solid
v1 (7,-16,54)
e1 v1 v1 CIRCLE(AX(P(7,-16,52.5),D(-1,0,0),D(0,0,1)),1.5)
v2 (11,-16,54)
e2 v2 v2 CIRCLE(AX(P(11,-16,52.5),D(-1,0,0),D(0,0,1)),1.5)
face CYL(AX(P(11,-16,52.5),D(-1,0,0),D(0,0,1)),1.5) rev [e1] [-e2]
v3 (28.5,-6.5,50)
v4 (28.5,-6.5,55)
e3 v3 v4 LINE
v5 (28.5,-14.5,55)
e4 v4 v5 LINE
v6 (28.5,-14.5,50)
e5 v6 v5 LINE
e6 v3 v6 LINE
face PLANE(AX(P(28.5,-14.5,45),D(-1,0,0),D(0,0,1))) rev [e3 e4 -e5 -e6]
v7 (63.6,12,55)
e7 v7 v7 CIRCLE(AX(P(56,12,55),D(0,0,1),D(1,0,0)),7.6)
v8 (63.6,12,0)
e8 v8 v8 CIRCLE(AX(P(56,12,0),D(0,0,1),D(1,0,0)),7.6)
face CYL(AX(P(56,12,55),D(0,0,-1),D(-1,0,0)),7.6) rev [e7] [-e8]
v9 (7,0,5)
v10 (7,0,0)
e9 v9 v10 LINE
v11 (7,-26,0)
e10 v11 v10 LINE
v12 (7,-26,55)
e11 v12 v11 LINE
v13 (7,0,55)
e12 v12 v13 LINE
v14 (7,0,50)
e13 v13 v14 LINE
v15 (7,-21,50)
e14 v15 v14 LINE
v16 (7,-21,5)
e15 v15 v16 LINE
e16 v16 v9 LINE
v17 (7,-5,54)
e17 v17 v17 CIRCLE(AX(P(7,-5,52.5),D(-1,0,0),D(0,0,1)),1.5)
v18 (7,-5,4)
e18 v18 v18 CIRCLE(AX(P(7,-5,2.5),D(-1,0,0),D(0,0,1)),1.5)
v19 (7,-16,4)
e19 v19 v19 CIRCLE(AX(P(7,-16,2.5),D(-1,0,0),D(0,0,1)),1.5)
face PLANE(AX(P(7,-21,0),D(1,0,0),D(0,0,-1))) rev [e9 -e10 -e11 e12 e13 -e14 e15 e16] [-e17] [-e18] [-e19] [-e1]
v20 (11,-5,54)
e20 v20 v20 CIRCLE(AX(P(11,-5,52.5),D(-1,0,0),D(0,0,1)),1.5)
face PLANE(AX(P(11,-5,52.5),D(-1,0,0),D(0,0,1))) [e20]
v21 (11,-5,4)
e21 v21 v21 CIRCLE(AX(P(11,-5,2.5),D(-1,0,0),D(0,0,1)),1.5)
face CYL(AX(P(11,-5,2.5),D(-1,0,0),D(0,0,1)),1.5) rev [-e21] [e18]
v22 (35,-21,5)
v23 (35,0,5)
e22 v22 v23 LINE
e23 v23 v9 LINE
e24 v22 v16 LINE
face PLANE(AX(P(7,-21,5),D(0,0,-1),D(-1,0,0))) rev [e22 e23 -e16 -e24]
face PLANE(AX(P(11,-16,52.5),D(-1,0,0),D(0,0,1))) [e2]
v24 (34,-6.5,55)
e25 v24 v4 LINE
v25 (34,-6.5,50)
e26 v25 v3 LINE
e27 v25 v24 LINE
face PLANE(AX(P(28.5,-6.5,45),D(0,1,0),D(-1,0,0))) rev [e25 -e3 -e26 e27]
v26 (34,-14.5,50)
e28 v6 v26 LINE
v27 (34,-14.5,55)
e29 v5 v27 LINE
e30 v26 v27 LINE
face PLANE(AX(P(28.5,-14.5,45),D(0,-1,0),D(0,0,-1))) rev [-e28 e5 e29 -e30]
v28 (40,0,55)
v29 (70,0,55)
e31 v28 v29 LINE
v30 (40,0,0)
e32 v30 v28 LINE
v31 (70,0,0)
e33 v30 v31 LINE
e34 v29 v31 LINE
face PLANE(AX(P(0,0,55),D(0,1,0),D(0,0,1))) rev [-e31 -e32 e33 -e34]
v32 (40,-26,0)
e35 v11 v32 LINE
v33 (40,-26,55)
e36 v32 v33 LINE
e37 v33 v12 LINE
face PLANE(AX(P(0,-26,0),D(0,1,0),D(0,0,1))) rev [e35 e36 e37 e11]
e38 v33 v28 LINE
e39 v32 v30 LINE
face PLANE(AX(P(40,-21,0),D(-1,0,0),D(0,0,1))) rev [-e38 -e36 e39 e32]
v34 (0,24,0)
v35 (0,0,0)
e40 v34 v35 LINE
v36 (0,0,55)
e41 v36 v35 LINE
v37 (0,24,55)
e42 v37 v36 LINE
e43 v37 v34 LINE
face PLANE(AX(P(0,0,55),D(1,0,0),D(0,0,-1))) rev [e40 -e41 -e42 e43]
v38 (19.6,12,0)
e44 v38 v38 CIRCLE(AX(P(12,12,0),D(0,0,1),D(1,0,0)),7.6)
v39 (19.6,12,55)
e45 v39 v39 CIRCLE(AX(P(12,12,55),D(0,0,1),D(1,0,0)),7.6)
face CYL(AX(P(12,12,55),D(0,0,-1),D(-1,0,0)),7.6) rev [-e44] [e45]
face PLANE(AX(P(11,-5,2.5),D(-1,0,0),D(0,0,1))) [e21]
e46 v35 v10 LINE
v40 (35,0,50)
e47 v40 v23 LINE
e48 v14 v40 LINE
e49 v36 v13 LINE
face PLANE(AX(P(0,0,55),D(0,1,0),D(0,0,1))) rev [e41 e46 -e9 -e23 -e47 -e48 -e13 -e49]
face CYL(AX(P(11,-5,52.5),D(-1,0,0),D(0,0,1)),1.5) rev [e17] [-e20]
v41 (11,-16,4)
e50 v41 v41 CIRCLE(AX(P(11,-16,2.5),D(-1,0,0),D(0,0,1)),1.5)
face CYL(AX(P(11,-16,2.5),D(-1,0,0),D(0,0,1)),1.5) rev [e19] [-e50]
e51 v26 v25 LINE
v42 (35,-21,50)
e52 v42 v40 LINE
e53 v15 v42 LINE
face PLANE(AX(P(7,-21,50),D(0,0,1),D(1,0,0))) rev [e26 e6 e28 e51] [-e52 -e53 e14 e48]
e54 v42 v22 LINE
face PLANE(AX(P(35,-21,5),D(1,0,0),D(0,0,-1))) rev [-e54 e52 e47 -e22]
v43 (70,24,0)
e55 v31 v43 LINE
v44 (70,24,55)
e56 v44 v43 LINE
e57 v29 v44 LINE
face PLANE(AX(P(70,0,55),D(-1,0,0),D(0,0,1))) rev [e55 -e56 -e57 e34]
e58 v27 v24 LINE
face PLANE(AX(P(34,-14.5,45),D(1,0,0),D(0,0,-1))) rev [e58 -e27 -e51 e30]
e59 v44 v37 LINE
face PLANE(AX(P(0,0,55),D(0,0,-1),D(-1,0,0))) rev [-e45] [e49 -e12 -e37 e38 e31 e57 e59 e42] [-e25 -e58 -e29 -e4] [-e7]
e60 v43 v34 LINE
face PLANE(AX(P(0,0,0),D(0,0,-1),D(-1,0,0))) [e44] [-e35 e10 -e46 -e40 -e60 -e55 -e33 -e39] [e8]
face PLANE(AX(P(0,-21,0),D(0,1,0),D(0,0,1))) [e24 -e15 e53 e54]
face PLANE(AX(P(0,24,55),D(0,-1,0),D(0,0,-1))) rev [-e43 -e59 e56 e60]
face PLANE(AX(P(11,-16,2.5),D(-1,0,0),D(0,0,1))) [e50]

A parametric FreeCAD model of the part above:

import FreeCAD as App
import Part
import Sketcher

doc = App.newDocument("Part")
params = doc.addObject("Spreadsheet::Sheet", "Params")
for row, (alias, value) in enumerate([
    ("sketch1_width", "70 mm"),
    ("sketch1_height", "24 mm"),
    ("pad1_length", "55 mm"),
    ("sketch2_diameter", "15.2 mm"),
    ("sketch3_width", "33 mm"),
    ("sketch3_width2", "28 mm"),
    ("sketch3_height", "55 mm"),
    ("sketch3_height2", "5 mm"),
    ("pad2_length", "21 mm"),
    ("sketch4_width", "33 mm"),
    ("sketch4_height", "55 mm"),
    ("pad3_length", "5 mm"),
    ("sketch5_diameter", "3 mm"),
    ("pocket2_length", "4 mm"),
    ("sketch6_height", "8 mm"),
    ("sketch6_width", "5.5 mm"),
    ("pocket3_length", "10 mm"),
], start=1):
    params.set(f"A{row}", alias)
    params.set(f"B{row}", "=" + value)
    params.setAlias(f"B{row}", alias)

body = doc.addObject("PartDesign::Body", "Body")

sketch1 = body.newObject("Sketcher::SketchObject", "Sketch")
sketch1.AttachmentSupport = (doc.getObject("XY_Plane"), [""])
sketch1.MapMode = "FlatFace"
sketch1.addGeometry([
    Part.LineSegment(App.Vector(0, 24, 0), App.Vector(0, 0, 0)),
    Part.LineSegment(App.Vector(0, 0, 0), App.Vector(70, 0, 0)),
    Part.LineSegment(App.Vector(70, 0, 0), App.Vector(70, 24, 0)),
    Part.LineSegment(App.Vector(70, 24, 0), App.Vector(0, 24, 0)),
], False)
sketch1.addConstraint([
    Sketcher.Constraint("Coincident", 0, 2, 1, 1),
    Sketcher.Constraint("Coincident", 1, 2, 2, 1),
    Sketcher.Constraint("Coincident", 2, 2, 3, 1),
    Sketcher.Constraint("Coincident", 3, 2, 0, 1),
    Sketcher.Constraint("Vertical", 0),
    Sketcher.Constraint("Horizontal", 1),
    Sketcher.Constraint("Vertical", 2),
    Sketcher.Constraint("Horizontal", 3),
    Sketcher.Constraint("Coincident", 0, 2, -1, 1),
    Sketcher.Constraint("DistanceX", 1, 1, 1, 2, 70.0),
    Sketcher.Constraint("DistanceY", 0, 2, 0, 1, 24.0),
])
sketch1.setExpression("Constraints[9]", "Params.sketch1_width")
sketch1.setExpression("Constraints[10]", "Params.sketch1_height")
pad1 = body.newObject("PartDesign::Pad", "Pad")
pad1.Profile = sketch1
pad1.setExpression("Length", "Params.pad1_length")

sketch2 = body.newObject("Sketcher::SketchObject", "Sketch001")
sketch2.AttachmentSupport = (doc.getObject("XY_Plane"), [""])
sketch2.MapMode = "FlatFace"
sketch2.addGeometry([
    Part.Circle(App.Vector(56, 12, 0), App.Vector(0, 0, 1), 7.6),
    Part.Circle(App.Vector(12, 12, 0), App.Vector(0, 0, 1), 7.6),
], False)
sketch2.addConstraint([
    Sketcher.Constraint("Equal", 0, 1),
    Sketcher.Constraint("Horizontal", 0, 3, 1, 3),
    Sketcher.Constraint("Diameter", 0, 15.2),
    Sketcher.Constraint("DistanceX", -1, 1, 0, 3, 56.0),
    Sketcher.Constraint("DistanceY", -1, 1, 0, 3, 12.0),
    Sketcher.Constraint("DistanceX", -1, 1, 1, 3, 12.0),
])
sketch2.setExpression("Constraints[2]", "Params.sketch2_diameter")
pocket1 = body.newObject("PartDesign::Pocket", "Pocket")
pocket1.Profile = sketch2
pocket1.Type = "ThroughAll"
pocket1.Reversed = True

sketch3 = body.newObject("Sketcher::SketchObject", "Sketch002")
sketch3.AttachmentSupport = (doc.getObject("XZ_Plane"), [""])
sketch3.MapMode = "FlatFace"
sketch3.addGeometry([
    Part.LineSegment(App.Vector(7, 0, 0), App.Vector(40, 0, 0)),
    Part.LineSegment(App.Vector(40, 0, 0), App.Vector(40, 55, 0)),
    Part.LineSegment(App.Vector(40, 55, 0), App.Vector(7, 55, 0)),
    Part.LineSegment(App.Vector(7, 55, 0), App.Vector(7, 50, 0)),
    Part.LineSegment(App.Vector(7, 50, 0), App.Vector(35, 50, 0)),
    Part.LineSegment(App.Vector(35, 50, 0), App.Vector(35, 5, 0)),
    Part.LineSegment(App.Vector(35, 5, 0), App.Vector(7, 5, 0)),
    Part.LineSegment(App.Vector(7, 5, 0), App.Vector(7, 0, 0)),
], False)
sketch3.addConstraint([
    Sketcher.Constraint("Coincident", 0, 2, 1, 1),
    Sketcher.Constraint("Coincident", 1, 2, 2, 1),
    Sketcher.Constraint("Coincident", 2, 2, 3, 1),
    Sketcher.Constraint("Coincident", 3, 2, 4, 1),
    Sketcher.Constraint("Coincident", 4, 2, 5, 1),
    Sketcher.Constraint("Coincident", 5, 2, 6, 1),
    Sketcher.Constraint("Coincident", 6, 2, 7, 1),
    Sketcher.Constraint("Coincident", 7, 2, 0, 1),
    Sketcher.Constraint("Horizontal", 0),
    Sketcher.Constraint("Vertical", 1),
    Sketcher.Constraint("Horizontal", 2),
    Sketcher.Constraint("Vertical", 3),
    Sketcher.Constraint("Horizontal", 4),
    Sketcher.Constraint("Vertical", 5),
    Sketcher.Constraint("Horizontal", 6),
    Sketcher.Constraint("Vertical", 7),
    Sketcher.Constraint("PointOnObject", 0, 2, -1),
    Sketcher.Constraint("Vertical", 3, 2, 6, 2),
    Sketcher.Constraint("Equal", 3, 7),
    Sketcher.Constraint("DistanceX", 0, 1, 0, 2, 33.0),
    Sketcher.Constraint("DistanceX", 4, 1, 4, 2, 28.0),
    Sketcher.Constraint("DistanceY", 1, 1, 1, 2, 55.0),
    Sketcher.Constraint("DistanceY", 3, 2, 3, 1, 5.0),
    Sketcher.Constraint("DistanceX", -1, 1, 0, 2, 40.0),
])
sketch3.setExpression("Constraints[19]", "Params.sketch3_width")
sketch3.setExpression("Constraints[20]", "Params.sketch3_width2")
sketch3.setExpression("Constraints[21]", "Params.sketch3_height")
sketch3.setExpression("Constraints[22]", "Params.sketch3_height2")
pad2 = body.newObject("PartDesign::Pad", "Pad001")
pad2.Profile = sketch3
pad2.setExpression("Length", "Params.pad2_length")

sketch4 = body.newObject("Sketcher::SketchObject", "Sketch003")
sketch4.AttachmentSupport = (doc.getObject("XZ_Plane"), [""])
sketch4.MapMode = "FlatFace"
sketch4.AttachmentOffset = App.Placement(App.Vector(0, 0, 21), App.Rotation())
sketch4.addGeometry([
    Part.LineSegment(App.Vector(7, 55, 0), App.Vector(7, 0, 0)),
    Part.LineSegment(App.Vector(7, 0, 0), App.Vector(40, 0, 0)),
    Part.LineSegment(App.Vector(40, 0, 0), App.Vector(40, 55, 0)),
    Part.LineSegment(App.Vector(40, 55, 0), App.Vector(7, 55, 0)),
], False)
sketch4.addConstraint([
    Sketcher.Constraint("Coincident", 0, 2, 1, 1),
    Sketcher.Constraint("Coincident", 1, 2, 2, 1),
    Sketcher.Constraint("Coincident", 2, 2, 3, 1),
    Sketcher.Constraint("Coincident", 3, 2, 0, 1),
    Sketcher.Constraint("Vertical", 0),
    Sketcher.Constraint("Horizontal", 1),
    Sketcher.Constraint("Vertical", 2),
    Sketcher.Constraint("Horizontal", 3),
    Sketcher.Constraint("PointOnObject", 0, 2, -1),
    Sketcher.Constraint("DistanceX", 1, 1, 1, 2, 33.0),
    Sketcher.Constraint("DistanceY", 0, 2, 0, 1, 55.0),
    Sketcher.Constraint("DistanceX", -1, 1, 0, 2, 7.0),
])
sketch4.setExpression("Constraints[9]", "Params.sketch4_width")
sketch4.setExpression("Constraints[10]", "Params.sketch4_height")
pad3 = body.newObject("PartDesign::Pad", "Pad002")
pad3.Profile = sketch4
pad3.setExpression("Length", "Params.pad3_length")

sketch5 = body.newObject("Sketcher::SketchObject", "Sketch004")
sketch5.AttachmentSupport = (doc.getObject("YZ_Plane"), [""])
sketch5.MapMode = "FlatFace"
sketch5.AttachmentOffset = App.Placement(App.Vector(0, 0, 7), App.Rotation())
sketch5.addGeometry([
    Part.Circle(App.Vector(-16, 52.5, 0), App.Vector(0, 0, 1), 1.5),
    Part.Circle(App.Vector(-5, 52.5, 0), App.Vector(0, 0, 1), 1.5),
    Part.Circle(App.Vector(-16, 2.5, 0), App.Vector(0, 0, 1), 1.5),
    Part.Circle(App.Vector(-5, 2.5, 0), App.Vector(0, 0, 1), 1.5),
], False)
sketch5.addConstraint([
    Sketcher.Constraint("Equal", 0, 1),
    Sketcher.Constraint("Equal", 1, 2),
    Sketcher.Constraint("Equal", 2, 3),
    Sketcher.Constraint("Horizontal", 0, 3, 1, 3),
    Sketcher.Constraint("Horizontal", 2, 3, 3, 3),
    Sketcher.Constraint("Vertical", 0, 3, 2, 3),
    Sketcher.Constraint("Vertical", 1, 3, 3, 3),
    Sketcher.Constraint("Diameter", 0, 3.0),
    Sketcher.Constraint("DistanceX", 0, 3, -1, 1, 16.0),
    Sketcher.Constraint("DistanceX", 1, 3, -1, 1, 5.0),
    Sketcher.Constraint("DistanceY", 2, 3, 0, 3, 50.0),
    Sketcher.Constraint("DistanceY", -1, 1, 0, 3, 52.5),
])
sketch5.setExpression("Constraints[7]", "Params.sketch5_diameter")
pocket2 = body.newObject("PartDesign::Pocket", "Pocket001")
pocket2.Profile = sketch5
pocket2.setExpression("Length", "Params.pocket2_length")
pocket2.Reversed = True

sketch6 = body.newObject("Sketcher::SketchObject", "Sketch005")
sketch6.AttachmentSupport = (doc.getObject("XY_Plane"), [""])
sketch6.MapMode = "FlatFace"
sketch6.AttachmentOffset = App.Placement(App.Vector(0, 0, 55), App.Rotation())
sketch6.addGeometry([
    Part.LineSegment(App.Vector(28.5, -6.5, 0), App.Vector(28.5, -14.5, 0)),
    Part.LineSegment(App.Vector(28.5, -14.5, 0), App.Vector(34, -14.5, 0)),
    Part.LineSegment(App.Vector(34, -14.5, 0), App.Vector(34, -6.5, 0)),
    Part.LineSegment(App.Vector(34, -6.5, 0), App.Vector(28.5, -6.5, 0)),
], False)
sketch6.addConstraint([
    Sketcher.Constraint("Coincident", 0, 2, 1, 1),
    Sketcher.Constraint("Coincident", 1, 2, 2, 1),
    Sketcher.Constraint("Coincident", 2, 2, 3, 1),
    Sketcher.Constraint("Coincident", 3, 2, 0, 1),
    Sketcher.Constraint("Vertical", 0),
    Sketcher.Constraint("Horizontal", 1),
    Sketcher.Constraint("Vertical", 2),
    Sketcher.Constraint("Horizontal", 3),
    Sketcher.Constraint("DistanceY", 0, 2, 0, 1, 8.0),
    Sketcher.Constraint("DistanceX", 1, 1, 1, 2, 5.5),
    Sketcher.Constraint("DistanceX", -1, 1, 1, 2, 34.0),
    Sketcher.Constraint("DistanceY", 0, 2, -1, 1, 14.5),
])
sketch6.setExpression("Constraints[8]", "Params.sketch6_height")
sketch6.setExpression("Constraints[9]", "Params.sketch6_width")
pocket3 = body.newObject("PartDesign::Pocket", "Pocket002")
pocket3.Profile = sketch6
pocket3.setExpression("Length", "Params.pocket3_length")

doc.recompute()
